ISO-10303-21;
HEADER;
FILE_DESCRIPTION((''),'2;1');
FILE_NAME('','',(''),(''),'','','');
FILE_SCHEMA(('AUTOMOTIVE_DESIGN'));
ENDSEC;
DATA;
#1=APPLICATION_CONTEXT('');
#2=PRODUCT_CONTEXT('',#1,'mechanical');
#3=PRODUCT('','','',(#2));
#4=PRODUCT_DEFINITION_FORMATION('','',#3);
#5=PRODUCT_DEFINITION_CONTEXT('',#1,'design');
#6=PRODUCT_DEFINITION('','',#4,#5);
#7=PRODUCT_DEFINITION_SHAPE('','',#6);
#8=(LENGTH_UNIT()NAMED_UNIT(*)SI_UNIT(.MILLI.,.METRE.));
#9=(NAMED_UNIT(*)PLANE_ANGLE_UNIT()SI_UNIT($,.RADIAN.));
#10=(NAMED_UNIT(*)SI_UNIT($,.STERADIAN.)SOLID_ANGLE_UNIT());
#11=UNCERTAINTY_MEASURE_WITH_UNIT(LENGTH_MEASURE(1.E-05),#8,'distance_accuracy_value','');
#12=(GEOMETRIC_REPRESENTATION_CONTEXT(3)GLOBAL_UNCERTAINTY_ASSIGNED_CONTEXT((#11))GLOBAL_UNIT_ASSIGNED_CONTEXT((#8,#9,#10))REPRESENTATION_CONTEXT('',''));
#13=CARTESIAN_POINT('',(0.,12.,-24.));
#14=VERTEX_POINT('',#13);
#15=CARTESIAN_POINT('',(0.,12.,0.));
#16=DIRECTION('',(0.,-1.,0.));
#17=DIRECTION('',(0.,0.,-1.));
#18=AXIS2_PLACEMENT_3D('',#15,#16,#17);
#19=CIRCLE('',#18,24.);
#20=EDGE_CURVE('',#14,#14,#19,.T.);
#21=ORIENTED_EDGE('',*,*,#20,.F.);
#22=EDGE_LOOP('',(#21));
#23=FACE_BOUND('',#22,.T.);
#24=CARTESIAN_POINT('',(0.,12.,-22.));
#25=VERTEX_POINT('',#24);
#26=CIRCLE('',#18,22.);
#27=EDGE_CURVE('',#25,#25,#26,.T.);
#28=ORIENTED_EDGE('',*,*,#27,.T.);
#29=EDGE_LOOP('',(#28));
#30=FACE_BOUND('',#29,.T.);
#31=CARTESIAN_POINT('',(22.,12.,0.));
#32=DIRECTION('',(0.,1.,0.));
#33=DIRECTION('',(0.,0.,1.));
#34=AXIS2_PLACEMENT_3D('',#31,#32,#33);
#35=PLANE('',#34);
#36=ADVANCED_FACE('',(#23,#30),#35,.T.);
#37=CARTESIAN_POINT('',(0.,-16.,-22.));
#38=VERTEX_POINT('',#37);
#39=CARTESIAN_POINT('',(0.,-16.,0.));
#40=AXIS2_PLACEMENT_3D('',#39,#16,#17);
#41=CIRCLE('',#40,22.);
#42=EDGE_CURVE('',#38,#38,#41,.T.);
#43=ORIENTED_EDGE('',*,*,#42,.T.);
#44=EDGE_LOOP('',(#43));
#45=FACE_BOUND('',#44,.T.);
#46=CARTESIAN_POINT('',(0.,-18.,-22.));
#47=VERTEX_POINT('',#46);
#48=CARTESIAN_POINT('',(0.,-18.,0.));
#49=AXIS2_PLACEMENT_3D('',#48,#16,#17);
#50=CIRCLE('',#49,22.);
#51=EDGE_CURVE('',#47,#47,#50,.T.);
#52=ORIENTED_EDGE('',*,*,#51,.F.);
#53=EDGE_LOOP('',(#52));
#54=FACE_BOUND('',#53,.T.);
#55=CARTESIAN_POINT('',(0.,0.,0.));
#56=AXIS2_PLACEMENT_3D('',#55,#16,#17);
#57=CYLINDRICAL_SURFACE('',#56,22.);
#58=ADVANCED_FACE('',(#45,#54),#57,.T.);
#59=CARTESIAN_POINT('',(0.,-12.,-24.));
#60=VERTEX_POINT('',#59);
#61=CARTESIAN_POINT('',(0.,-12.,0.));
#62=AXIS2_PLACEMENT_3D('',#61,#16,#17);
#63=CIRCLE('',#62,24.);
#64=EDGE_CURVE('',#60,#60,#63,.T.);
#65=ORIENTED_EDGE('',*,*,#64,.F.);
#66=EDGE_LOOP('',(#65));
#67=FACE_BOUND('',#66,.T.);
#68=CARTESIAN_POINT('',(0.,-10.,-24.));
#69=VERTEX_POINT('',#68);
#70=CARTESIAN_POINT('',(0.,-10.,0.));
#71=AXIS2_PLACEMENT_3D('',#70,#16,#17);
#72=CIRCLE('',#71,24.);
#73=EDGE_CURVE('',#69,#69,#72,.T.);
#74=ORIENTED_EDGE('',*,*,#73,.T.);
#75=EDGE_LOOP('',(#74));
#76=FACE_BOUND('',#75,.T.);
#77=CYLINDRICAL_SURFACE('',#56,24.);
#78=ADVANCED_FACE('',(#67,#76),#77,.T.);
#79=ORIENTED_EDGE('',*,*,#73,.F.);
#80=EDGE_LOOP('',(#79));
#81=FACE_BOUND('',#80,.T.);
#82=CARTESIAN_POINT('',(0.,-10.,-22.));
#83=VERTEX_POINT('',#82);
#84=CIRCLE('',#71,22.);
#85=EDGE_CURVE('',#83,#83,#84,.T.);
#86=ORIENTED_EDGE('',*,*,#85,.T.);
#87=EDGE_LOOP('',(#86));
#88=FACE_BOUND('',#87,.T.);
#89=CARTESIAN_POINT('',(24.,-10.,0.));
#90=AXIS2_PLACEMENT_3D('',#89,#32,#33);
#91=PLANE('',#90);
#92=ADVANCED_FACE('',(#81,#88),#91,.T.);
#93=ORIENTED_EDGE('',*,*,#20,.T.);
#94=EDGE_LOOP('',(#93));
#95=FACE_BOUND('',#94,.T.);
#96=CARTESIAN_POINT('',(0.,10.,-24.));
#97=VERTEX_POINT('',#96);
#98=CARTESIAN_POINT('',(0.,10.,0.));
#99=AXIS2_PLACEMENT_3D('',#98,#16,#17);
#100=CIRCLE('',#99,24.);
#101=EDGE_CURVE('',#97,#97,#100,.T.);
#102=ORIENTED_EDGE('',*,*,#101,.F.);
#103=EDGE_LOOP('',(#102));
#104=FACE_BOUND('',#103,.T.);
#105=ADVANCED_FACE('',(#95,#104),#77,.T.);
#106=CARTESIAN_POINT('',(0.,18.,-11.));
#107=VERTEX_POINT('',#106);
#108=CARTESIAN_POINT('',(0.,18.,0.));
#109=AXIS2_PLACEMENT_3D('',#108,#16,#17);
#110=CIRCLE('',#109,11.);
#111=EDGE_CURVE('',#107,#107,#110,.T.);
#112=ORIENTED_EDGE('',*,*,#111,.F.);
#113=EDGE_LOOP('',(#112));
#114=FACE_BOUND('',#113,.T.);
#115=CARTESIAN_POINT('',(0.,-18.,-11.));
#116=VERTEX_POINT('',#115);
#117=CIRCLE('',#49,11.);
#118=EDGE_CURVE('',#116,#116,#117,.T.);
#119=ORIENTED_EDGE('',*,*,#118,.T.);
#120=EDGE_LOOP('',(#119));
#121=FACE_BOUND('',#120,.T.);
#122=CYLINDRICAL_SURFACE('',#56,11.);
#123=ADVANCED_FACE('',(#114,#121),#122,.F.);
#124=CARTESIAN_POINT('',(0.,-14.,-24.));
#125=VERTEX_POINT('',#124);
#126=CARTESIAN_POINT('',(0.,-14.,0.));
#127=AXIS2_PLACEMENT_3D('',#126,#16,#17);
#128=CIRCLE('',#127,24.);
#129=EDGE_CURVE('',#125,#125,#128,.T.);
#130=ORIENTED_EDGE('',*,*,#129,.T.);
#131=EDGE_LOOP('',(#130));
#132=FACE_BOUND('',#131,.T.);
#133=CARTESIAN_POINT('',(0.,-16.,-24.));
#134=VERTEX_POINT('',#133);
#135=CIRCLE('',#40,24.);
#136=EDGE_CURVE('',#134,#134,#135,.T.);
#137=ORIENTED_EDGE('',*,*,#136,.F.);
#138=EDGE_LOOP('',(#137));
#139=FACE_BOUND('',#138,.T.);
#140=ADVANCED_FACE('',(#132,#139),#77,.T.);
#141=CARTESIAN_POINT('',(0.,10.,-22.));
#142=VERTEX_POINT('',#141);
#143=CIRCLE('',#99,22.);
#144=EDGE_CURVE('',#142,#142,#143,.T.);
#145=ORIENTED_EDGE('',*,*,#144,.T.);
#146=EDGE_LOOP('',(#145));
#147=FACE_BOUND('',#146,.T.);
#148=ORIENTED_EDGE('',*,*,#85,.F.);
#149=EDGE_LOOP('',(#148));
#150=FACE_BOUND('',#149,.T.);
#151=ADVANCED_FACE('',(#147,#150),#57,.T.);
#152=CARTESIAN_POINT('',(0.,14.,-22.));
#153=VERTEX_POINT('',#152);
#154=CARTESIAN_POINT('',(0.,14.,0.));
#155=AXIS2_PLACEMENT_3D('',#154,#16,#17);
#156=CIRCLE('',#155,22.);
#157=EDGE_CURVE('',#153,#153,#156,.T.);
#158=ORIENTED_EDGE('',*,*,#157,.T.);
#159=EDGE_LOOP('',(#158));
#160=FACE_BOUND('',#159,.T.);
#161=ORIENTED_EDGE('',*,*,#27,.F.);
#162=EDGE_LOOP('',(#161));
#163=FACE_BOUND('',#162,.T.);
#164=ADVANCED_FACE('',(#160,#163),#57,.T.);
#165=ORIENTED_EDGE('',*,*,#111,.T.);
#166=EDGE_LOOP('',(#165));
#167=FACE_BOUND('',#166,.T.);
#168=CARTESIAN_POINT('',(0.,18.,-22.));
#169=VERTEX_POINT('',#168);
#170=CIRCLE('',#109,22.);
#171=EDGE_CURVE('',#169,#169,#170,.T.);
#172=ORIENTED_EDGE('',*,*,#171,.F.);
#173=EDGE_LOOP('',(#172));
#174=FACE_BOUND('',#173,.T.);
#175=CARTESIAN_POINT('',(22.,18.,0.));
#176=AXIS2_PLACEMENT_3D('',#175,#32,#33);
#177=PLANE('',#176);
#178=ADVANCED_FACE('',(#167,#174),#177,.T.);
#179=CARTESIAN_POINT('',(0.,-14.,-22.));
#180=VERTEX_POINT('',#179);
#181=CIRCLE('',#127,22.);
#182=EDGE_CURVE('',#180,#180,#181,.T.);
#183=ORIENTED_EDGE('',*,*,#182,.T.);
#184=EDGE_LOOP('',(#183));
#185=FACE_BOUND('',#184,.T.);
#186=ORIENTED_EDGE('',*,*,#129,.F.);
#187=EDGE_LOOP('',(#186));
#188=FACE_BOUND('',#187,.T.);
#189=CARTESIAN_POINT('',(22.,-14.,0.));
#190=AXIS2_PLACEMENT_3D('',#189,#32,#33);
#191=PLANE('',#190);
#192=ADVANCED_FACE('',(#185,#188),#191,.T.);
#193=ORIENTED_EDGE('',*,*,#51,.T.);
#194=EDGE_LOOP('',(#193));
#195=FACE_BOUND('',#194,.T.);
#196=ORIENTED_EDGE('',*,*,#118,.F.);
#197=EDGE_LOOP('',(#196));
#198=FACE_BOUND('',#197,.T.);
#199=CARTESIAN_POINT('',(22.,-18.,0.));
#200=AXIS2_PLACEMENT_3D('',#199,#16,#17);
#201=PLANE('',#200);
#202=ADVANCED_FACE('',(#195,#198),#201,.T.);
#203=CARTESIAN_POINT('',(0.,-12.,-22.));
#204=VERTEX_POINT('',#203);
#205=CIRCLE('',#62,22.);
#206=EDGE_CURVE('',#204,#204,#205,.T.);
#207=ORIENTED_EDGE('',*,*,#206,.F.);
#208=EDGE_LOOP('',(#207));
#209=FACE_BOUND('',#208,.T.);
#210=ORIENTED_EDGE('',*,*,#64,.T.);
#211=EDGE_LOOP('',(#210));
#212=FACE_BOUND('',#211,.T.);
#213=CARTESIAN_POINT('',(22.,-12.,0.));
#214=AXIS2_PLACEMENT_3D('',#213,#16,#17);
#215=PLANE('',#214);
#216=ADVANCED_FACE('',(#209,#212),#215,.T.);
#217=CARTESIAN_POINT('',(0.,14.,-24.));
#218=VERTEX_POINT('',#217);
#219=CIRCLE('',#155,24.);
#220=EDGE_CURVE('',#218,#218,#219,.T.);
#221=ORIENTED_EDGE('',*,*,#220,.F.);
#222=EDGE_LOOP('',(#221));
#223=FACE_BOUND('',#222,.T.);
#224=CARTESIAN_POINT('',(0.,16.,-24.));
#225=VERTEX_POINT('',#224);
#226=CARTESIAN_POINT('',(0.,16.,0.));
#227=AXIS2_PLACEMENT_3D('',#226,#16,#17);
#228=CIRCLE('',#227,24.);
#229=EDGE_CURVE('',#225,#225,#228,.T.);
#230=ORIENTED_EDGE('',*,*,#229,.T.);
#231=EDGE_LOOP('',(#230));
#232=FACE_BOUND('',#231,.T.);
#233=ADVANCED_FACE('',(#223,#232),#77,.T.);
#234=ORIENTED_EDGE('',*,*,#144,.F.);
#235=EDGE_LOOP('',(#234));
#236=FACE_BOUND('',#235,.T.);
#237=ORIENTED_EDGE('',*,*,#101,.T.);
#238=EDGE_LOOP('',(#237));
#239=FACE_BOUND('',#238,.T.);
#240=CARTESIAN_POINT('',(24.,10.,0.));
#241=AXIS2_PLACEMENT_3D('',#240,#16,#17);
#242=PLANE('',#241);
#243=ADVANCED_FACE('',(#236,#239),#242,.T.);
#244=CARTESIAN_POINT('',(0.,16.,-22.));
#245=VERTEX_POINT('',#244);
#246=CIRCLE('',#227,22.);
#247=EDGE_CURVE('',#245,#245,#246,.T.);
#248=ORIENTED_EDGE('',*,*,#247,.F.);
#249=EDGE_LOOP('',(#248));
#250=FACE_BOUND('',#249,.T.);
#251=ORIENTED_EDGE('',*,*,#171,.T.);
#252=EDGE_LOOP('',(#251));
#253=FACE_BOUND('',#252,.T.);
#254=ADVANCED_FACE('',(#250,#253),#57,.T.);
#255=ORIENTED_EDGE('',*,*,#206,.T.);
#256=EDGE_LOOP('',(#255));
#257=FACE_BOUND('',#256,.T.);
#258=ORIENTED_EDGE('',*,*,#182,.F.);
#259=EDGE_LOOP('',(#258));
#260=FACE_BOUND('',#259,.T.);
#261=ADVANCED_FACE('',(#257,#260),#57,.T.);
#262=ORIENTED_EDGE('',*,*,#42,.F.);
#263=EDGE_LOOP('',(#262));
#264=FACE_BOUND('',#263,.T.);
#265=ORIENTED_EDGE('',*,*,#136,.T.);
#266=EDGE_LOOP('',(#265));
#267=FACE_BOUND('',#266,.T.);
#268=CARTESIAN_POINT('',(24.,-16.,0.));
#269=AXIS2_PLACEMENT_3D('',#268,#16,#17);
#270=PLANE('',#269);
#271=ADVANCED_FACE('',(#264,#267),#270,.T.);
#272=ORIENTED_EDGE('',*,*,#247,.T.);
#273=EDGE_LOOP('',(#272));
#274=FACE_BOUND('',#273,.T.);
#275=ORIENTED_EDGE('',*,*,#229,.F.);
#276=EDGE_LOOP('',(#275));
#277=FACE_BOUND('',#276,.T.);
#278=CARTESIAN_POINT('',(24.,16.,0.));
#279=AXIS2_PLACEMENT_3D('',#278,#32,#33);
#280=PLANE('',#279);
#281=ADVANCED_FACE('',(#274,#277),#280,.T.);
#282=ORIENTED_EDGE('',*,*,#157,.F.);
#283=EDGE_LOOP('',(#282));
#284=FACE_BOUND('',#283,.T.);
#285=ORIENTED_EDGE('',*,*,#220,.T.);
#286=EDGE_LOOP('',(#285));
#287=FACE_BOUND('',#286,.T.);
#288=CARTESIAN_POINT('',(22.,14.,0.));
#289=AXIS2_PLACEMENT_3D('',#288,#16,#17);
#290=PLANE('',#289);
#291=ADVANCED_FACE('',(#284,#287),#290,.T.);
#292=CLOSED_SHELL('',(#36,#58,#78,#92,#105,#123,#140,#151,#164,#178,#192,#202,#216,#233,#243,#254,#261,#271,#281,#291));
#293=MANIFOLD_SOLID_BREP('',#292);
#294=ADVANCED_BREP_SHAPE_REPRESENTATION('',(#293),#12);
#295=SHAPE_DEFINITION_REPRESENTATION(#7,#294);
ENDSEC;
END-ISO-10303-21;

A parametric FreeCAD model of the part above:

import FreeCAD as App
import Part
import Sketcher
from FreeCAD import Vector
Q = App.Units.Quantity


def add_polygon(sketch, points):
    """Adds a closed chain of lines whose ends are joined by coincident constraints."""
    first, n = sketch.GeometryCount, len(points)
    for a, b in zip(points, points[1:] + points[:1]):
        sketch.addGeometry(Part.LineSegment(App.Vector(*a, 0), App.Vector(*b, 0)), False)
    for i in range(n):
        sketch.addConstraint(Sketcher.Constraint("Coincident", first + i, 2, first + (i + 1) % n, 1))

doc = App.newDocument("Part")
body = doc.addObject("PartDesign::Body", "Body")

sketch1 = body.newObject("Sketcher::SketchObject", "Sketch")
sketch1.AttachmentSupport = (doc.getObject("XY_Plane"), [""])
sketch1.MapMode = "FlatFace"
add_polygon(sketch1, [(24, 12), (22, 12), (22, 14), (24, 14), (24, 16), (22, 16), (22, 18), (11, 18), (11, -18), (22, -18), (22, -16), (24, -16), (24, -14), (22, -14), (22, -12), (24, -12), (24, -10), (22, -10), (22, 10), (24, 10)])
sketch1.addConstraint([
    Sketcher.Constraint("Horizontal", 0),
    Sketcher.Constraint("Vertical", 1),
    Sketcher.Constraint("Horizontal", 2),
    Sketcher.Constraint("Vertical", 3),
    Sketcher.Constraint("Horizontal", 4),
    Sketcher.Constraint("Vertical", 5),
    Sketcher.Constraint("Horizontal", 6),
    Sketcher.Constraint("Vertical", 7),
    Sketcher.Constraint("Horizontal", 8),
    Sketcher.Constraint("Vertical", 9),
    Sketcher.Constraint("Horizontal", 10),
    Sketcher.Constraint("Vertical", 11),
    Sketcher.Constraint("Horizontal", 12),
    Sketcher.Constraint("Vertical", 13),
    Sketcher.Constraint("Horizontal", 14),
    Sketcher.Constraint("Vertical", 15),
    Sketcher.Constraint("Horizontal", 16),
    Sketcher.Constraint("Vertical", 17),
    Sketcher.Constraint("Horizontal", 18),
    Sketcher.Constraint("Vertical", 19),
    Sketcher.Constraint("Symmetric", 5, 2, 8, 2, -1),
    Sketcher.Constraint("Symmetric", 3, 2, 10, 2, -1),
    Sketcher.Constraint("Symmetric", 1, 2, 12, 2, -1),
    Sketcher.Constraint("Symmetric", 15, 2, 18, 2, -1),
    Sketcher.Constraint("Vertical", 1, 2, 4, 2),
    Sketcher.Constraint("Vertical", 11, 2, 14, 2),
    Sketcher.Constraint("Vertical", 13, 2, 16, 2),
    Sketcher.Constraint("Equal", 18, 1),
    Sketcher.Constraint("Equal", 1, 3),
    Sketcher.Constraint("Equal", 3, 5),
    Sketcher.Constraint("Equal", 11, 13),
    Sketcher.Constraint("Equal", 13, 15),
    Sketcher.Constraint("DistanceX", 0, 2, 0, 1, Q("2 mm")),
    Sketcher.Constraint("DistanceX", 6, 2, 6, 1, Q("11 mm")),
    Sketcher.Constraint("DistanceY", 7, 2, 7, 1, Q("36 mm")),
    Sketcher.Constraint("DistanceX", -1, 1, 0, 2, Q("22 mm")),
])
revolution = body.newObject("PartDesign::Revolution", "Revolution")
revolution.Profile = sketch1
revolution.ReferenceAxis = (sketch1, ["V_Axis"])
revolution.Angle = 360

doc.recompute()
